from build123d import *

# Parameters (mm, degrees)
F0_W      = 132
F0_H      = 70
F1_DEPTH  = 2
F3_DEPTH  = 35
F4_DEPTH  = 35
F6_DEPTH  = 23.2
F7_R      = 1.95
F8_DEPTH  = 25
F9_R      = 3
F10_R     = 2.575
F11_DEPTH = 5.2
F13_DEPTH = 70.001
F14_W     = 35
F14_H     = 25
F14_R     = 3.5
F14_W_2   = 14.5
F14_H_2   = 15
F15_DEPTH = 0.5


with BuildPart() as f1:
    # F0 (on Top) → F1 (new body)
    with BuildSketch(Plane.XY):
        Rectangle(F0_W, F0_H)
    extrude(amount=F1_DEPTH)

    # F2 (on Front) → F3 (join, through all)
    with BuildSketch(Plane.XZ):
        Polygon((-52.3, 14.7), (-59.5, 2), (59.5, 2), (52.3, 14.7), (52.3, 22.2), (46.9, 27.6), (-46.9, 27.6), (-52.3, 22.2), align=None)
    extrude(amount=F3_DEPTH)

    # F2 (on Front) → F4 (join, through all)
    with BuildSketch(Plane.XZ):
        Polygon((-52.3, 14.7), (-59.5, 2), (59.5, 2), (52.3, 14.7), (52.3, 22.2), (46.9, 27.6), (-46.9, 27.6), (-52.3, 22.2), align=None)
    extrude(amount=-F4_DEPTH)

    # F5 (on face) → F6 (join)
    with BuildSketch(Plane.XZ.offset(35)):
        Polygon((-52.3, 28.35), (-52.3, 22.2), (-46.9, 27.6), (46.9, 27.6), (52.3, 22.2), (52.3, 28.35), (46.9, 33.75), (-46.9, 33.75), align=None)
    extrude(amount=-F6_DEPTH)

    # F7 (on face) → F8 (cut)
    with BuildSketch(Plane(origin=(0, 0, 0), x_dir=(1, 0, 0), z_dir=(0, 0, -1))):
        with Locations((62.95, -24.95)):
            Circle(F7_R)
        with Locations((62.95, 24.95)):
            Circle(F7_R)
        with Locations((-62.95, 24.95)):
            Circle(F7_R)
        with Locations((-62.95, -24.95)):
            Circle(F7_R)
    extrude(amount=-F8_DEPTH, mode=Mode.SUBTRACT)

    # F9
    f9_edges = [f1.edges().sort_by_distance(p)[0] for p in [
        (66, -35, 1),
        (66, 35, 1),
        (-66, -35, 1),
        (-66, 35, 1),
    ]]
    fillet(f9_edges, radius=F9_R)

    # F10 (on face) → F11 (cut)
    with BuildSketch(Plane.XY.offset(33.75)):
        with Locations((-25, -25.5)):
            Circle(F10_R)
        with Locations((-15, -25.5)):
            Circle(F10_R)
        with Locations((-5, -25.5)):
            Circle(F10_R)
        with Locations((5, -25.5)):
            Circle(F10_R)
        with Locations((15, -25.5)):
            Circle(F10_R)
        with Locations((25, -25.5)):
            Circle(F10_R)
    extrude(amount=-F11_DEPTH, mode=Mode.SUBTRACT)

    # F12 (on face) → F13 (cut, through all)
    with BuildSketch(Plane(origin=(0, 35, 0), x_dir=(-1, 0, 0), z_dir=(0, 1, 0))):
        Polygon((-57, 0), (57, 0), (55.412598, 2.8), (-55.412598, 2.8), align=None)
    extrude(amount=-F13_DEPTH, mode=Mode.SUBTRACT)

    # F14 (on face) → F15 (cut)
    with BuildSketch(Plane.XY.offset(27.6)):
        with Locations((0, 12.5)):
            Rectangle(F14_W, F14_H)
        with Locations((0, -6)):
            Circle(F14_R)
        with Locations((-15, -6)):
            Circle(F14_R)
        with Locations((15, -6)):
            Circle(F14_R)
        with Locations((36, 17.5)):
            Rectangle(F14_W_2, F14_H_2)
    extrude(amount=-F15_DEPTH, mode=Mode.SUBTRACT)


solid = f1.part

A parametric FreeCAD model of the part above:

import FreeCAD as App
import Part
import Sketcher
from FreeCAD import Vector
Q = App.Units.Quantity


def edges_at(feature, points):
    """Names of the edges that pass closest to the given points."""
    edges = feature.Shape.Edges
    near = lambda p: min(range(len(edges)), key=lambda i: edges[i].distToShape(Part.Vertex(*p))[0])
    return sorted({f"Edge{near(p) + 1}" for p in points})

doc = App.newDocument("Part")
params = doc.addObject("Spreadsheet::Sheet", "Params")
for row, (alias, value) in enumerate([
    ("sketch1_width", "132 mm"),
    ("sketch1_height", "70 mm"),
    ("pad1_length", "2 mm"),
    ("sketch2_width", "119 mm"),
    ("sketch2_width2", "93.8 mm"),
    ("sketch2_height", "7.5 mm"),
    ("pad2_length", "35 mm"),
    ("sketch3_width", "119 mm"),
    ("sketch3_width2", "93.8 mm"),
    ("sketch3_height", "7.5 mm"),
    ("pad3_length", "35 mm"),
    ("sketch4_width", "93.8 mm"),
    ("sketch4_height", "6.15 mm"),
    ("pad4_length", "23.2 mm"),
    ("sketch5_diameter", "3.9 mm"),
    ("pocket1_length", "25 mm"),
    ("fillet_radius", "3 mm"),
    ("sketch6_diameter", "5.15 mm"),
    ("pocket2_length", "5.2 mm"),
    ("sketch7_width", "114 mm"),
    ("sketch8_diameter", "7 mm"),
    ("sketch8_width", "35 mm"),
    ("sketch8_height", "25 mm"),
    ("sketch8_height2", "15 mm"),
    ("sketch8_width2", "14.5 mm"),
    ("pocket4_length", "0.5 mm"),
], start=1):
    params.set(f"A{row}", alias)
    params.set(f"B{row}", "=" + value)
    params.setAlias(f"B{row}", alias)

body = doc.addObject("PartDesign::Body", "Body")

# Sketch on XY plane
sketch1 = doc.addObject("Sketcher::SketchObject", "Sketch")
body.addObject(sketch1)
sketch1.AttachmentSupport = (doc.XY_Plane, [""])
sketch1.MapMode = "FlatFace"
sketch1.addGeometry(Part.LineSegment(Vector(-66, 35, 0), Vector(-66, -35, 0)), False)
sketch1.addGeometry(Part.LineSegment(Vector(-66, -35, 0), Vector(66, -35, 0)), False)
sketch1.addGeometry(Part.LineSegment(Vector(66, -35, 0), Vector(66, 35, 0)), False)
sketch1.addGeometry(Part.LineSegment(Vector(66, 35, 0), Vector(-66, 35, 0)), False)
sketch1.addConstraint(Sketcher.Constraint("Coincident", 0, 2, 1, 1))
sketch1.addConstraint(Sketcher.Constraint("Coincident", 1, 2, 2, 1))
sketch1.addConstraint(Sketcher.Constraint("Coincident", 2, 2, 3, 1))
sketch1.addConstraint(Sketcher.Constraint("Coincident", 3, 2, 0, 1))
sketch1.addConstraint(Sketcher.Constraint("Vertical", 0))
sketch1.addConstraint(Sketcher.Constraint("Horizontal", 1))
sketch1.addConstraint(Sketcher.Constraint("Vertical", 2))
sketch1.addConstraint(Sketcher.Constraint("Horizontal", 3))
sketch1.addConstraint(Sketcher.Constraint("Symmetric", 0, 2, 2, 2, -1, 1))
sketch1.addConstraint(Sketcher.Constraint("DistanceX", 1, 1, 1, 2, Q("132 mm")))
sketch1.addConstraint(Sketcher.Constraint("DistanceY", 0, 2, 0, 1, Q("70 mm")))
sketch1.setExpression("Constraints[9]", "Params.sketch1_width")
sketch1.setExpression("Constraints[10]", "Params.sketch1_height")
pad1 = doc.addObject("PartDesign::Pad", "Pad")
body.addObject(pad1)
pad1.Profile = sketch1
pad1.setExpression("Length", "Params.pad1_length")

# Sketch on XZ plane
sketch2 = doc.addObject("Sketcher::SketchObject", "Sketch001")
body.addObject(sketch2)
sketch2.AttachmentSupport = (doc.XZ_Plane, [""])
sketch2.MapMode = "FlatFace"
sketch2.addGeometry(Part.LineSegment(Vector(-52.3, 14.7, 0), Vector(-59.5, 2, 0)), False)
sketch2.addGeometry(Part.LineSegment(Vector(-59.5, 2, 0), Vector(59.5, 2, 0)), False)
sketch2.addGeometry(Part.LineSegment(Vector(59.5, 2, 0), Vector(52.3, 14.7, 0)), False)
sketch2.addGeometry(Part.LineSegment(Vector(52.3, 14.7, 0), Vector(52.3, 22.2, 0)), False)
sketch2.addGeometry(Part.LineSegment(Vector(52.3, 22.2, 0), Vector(46.9, 27.6, 0)), False)
sketch2.addGeometry(Part.LineSegment(Vector(46.9, 27.6, 0), Vector(-46.9, 27.6, 0)), False)
sketch2.addGeometry(Part.LineSegment(Vector(-46.9, 27.6, 0), Vector(-52.3, 22.2, 0)), False)
sketch2.addGeometry(Part.LineSegment(Vector(-52.3, 22.2, 0), Vector(-52.3, 14.7, 0)), False)
sketch2.addConstraint(Sketcher.Constraint("Coincident", 0, 2, 1, 1))
sketch2.addConstraint(Sketcher.Constraint("Coincident", 1, 2, 2, 1))
sketch2.addConstraint(Sketcher.Constraint("Coincident", 2, 2, 3, 1))
sketch2.addConstraint(Sketcher.Constraint("Coincident", 3, 2, 4, 1))
sketch2.addConstraint(Sketcher.Constraint("Coincident", 4, 2, 5, 1))
sketch2.addConstraint(Sketcher.Constraint("Coincident", 5, 2, 6, 1))
sketch2.addConstraint(Sketcher.Constraint("Coincident", 6, 2, 7, 1))
sketch2.addConstraint(Sketcher.Constraint("Coincident", 7, 2, 0, 1))
sketch2.addConstraint(Sketcher.Constraint("Horizontal", 1))
sketch2.addConstraint(Sketcher.Constraint("Vertical", 3))
sketch2.addConstraint(Sketcher.Constraint("Horizontal", 5))
sketch2.addConstraint(Sketcher.Constraint("Vertical", 7))
sketch2.addConstraint(Sketcher.Constraint("Symmetric", 3, 2, 6, 2, -2))
sketch2.addConstraint(Sketcher.Constraint("Perpendicular", 4, 6))
sketch2.addConstraint(Sketcher.Constraint("Horizontal", 2, 2, 7, 2))
sketch2.addConstraint(Sketcher.Constraint("Equal", 0, 2))
sketch2.addConstraint(Sketcher.Constraint("Equal", 4, 6))
sketch2.addConstraint(Sketcher.Constraint("DistanceX", 1, 1, 1, 2, Q("119 mm")))
sketch2.addConstraint(Sketcher.Constraint("DistanceX", 5, 2, 5, 1, Q("93.8 mm")))
sketch2.addConstraint(Sketcher.Constraint("DistanceY", 3, 1, 3, 2, Q("7.5 mm")))
sketch2.addConstraint(Sketcher.Constraint("DistanceY", -1, 1, 0, 2, Q("2 mm")))
sketch2.addConstraint(Sketcher.Constraint("DistanceX", -1, 1, 2, 2, Q("52.3 mm")))
sketch2.addConstraint(Sketcher.Constraint("DistanceY", -1, 1, 2, 2, Q("14.7 mm")))
sketch2.setExpression("Constraints[17]", "Params.sketch2_width")
sketch2.setExpression("Constraints[18]", "Params.sketch2_width2")
sketch2.setExpression("Constraints[19]", "Params.sketch2_height")
pad2 = doc.addObject("PartDesign::Pad", "Pad001")
body.addObject(pad2)
pad2.Profile = sketch2
pad2.setExpression("Length", "Params.pad2_length")

# Sketch on XZ plane
sketch3 = doc.addObject("Sketcher::SketchObject", "Sketch002")
body.addObject(sketch3)
sketch3.AttachmentSupport = (doc.XZ_Plane, [""])
sketch3.MapMode = "FlatFace"
sketch3.addGeometry(Part.LineSegment(Vector(-52.3, 14.7, 0), Vector(-59.5, 2, 0)), False)
sketch3.addGeometry(Part.LineSegment(Vector(-59.5, 2, 0), Vector(59.5, 2, 0)), False)
sketch3.addGeometry(Part.LineSegment(Vector(59.5, 2, 0), Vector(52.3, 14.7, 0)), False)
sketch3.addGeometry(Part.LineSegment(Vector(52.3, 14.7, 0), Vector(52.3, 22.2, 0)), False)
sketch3.addGeometry(Part.LineSegment(Vector(52.3, 22.2, 0), Vector(46.9, 27.6, 0)), False)
sketch3.addGeometry(Part.LineSegment(Vector(46.9, 27.6, 0), Vector(-46.9, 27.6, 0)), False)
sketch3.addGeometry(Part.LineSegment(Vector(-46.9, 27.6, 0), Vector(-52.3, 22.2, 0)), False)
sketch3.addGeometry(Part.LineSegment(Vector(-52.3, 22.2, 0), Vector(-52.3, 14.7, 0)), False)
sketch3.addConstraint(Sketcher.Constraint("Coincident", 0, 2, 1, 1))
sketch3.addConstraint(Sketcher.Constraint("Coincident", 1, 2, 2, 1))
sketch3.addConstraint(Sketcher.Constraint("Coincident", 2, 2, 3, 1))
sketch3.addConstraint(Sketcher.Constraint("Coincident", 3, 2, 4, 1))
sketch3.addConstraint(Sketcher.Constraint("Coincident", 4, 2, 5, 1))
sketch3.addConstraint(Sketcher.Constraint("Coincident", 5, 2, 6, 1))
sketch3.addConstraint(Sketcher.Constraint("Coincident", 6, 2, 7, 1))
sketch3.addConstraint(Sketcher.Constraint("Coincident", 7, 2, 0, 1))
sketch3.addConstraint(Sketcher.Constraint("Horizontal", 1))
sketch3.addConstraint(Sketcher.Constraint("Vertical", 3))
sketch3.addConstraint(Sketcher.Constraint("Horizontal", 5))
sketch3.addConstraint(Sketcher.Constraint("Vertical", 7))
sketch3.addConstraint(Sketcher.Constraint("Symmetric", 3, 2, 6, 2, -2))
sketch3.addConstraint(Sketcher.Constraint("Perpendicular", 4, 6))
sketch3.addConstraint(Sketcher.Constraint("Horizontal", 2, 2, 7, 2))
sketch3.addConstraint(Sketcher.Constraint("Equal", 0, 2))
sketch3.addConstraint(Sketcher.Constraint("Equal", 4, 6))
sketch3.addConstraint(Sketcher.Constraint("DistanceX", 1, 1, 1, 2, Q("119 mm")))
sketch3.addConstraint(Sketcher.Constraint("DistanceX", 5, 2, 5, 1, Q("93.8 mm")))
sketch3.addConstraint(Sketcher.Constraint("DistanceY", 3, 1, 3, 2, Q("7.5 mm")))
sketch3.addConstraint(Sketcher.Constraint("DistanceY", -1, 1, 0, 2, Q("2 mm")))
sketch3.addConstraint(Sketcher.Constraint("DistanceX", -1, 1, 2, 2, Q("52.3 mm")))
sketch3.addConstraint(Sketcher.Constraint("DistanceY", -1, 1, 2, 2, Q("14.7 mm")))
sketch3.setExpression("Constraints[17]", "Params.sketch3_width")
sketch3.setExpression("Constraints[18]", "Params.sketch3_width2")
sketch3.setExpression("Constraints[19]", "Params.sketch3_height")
pad3 = doc.addObject("PartDesign::Pad", "Pad002")
body.addObject(pad3)
pad3.Profile = sketch3
pad3.setExpression("Length", "Params.pad3_length")
pad3.Reversed = True

# Sketch on XZ plane
sketch4 = doc.addObject("Sketcher::SketchObject", "Sketch003")
body.addObject(sketch4)
sketch4.AttachmentSupport = (doc.XZ_Plane, [""])
sketch4.MapMode = "FlatFace"
sketch4.AttachmentOffset = App.Placement(Vector(0, 0, 35), App.Rotation())
sketch4.addGeometry(Part.LineSegment(Vector(-52.3, 28.35, 0), Vector(-52.3, 22.2, 0)), False)
sketch4.addGeometry(Part.LineSegment(Vector(-52.3, 22.2, 0), Vector(-46.9, 27.6, 0)), False)
sketch4.addGeometry(Part.LineSegment(Vector(-46.9, 27.6, 0), Vector(46.9, 27.6, 0)), False)
sketch4.addGeometry(Part.LineSegment(Vector(46.9, 27.6, 0), Vector(52.3, 22.2, 0)), False)
sketch4.addGeometry(Part.LineSegment(Vector(52.3, 22.2, 0), Vector(52.3, 28.35, 0)), False)
sketch4.addGeometry(Part.LineSegment(Vector(52.3, 28.35, 0), Vector(46.9, 33.75, 0)), False)
sketch4.addGeometry(Part.LineSegment(Vector(46.9, 33.75, 0), Vector(-46.9, 33.75, 0)), False)
sketch4.addGeometry(Part.LineSegment(Vector(-46.9, 33.75, 0), Vector(-52.3, 28.35, 0)), False)
sketch4.addConstraint(Sketcher.Constraint("Coincident", 0, 2, 1, 1))
sketch4.addConstraint(Sketcher.Constraint("Coincident", 1, 2, 2, 1))
sketch4.addConstraint(Sketcher.Constraint("Coincident", 2, 2, 3, 1))
sketch4.addConstraint(Sketcher.Constraint("Coincident", 3, 2, 4, 1))
sketch4.addConstraint(Sketcher.Constraint("Coincident", 4, 2, 5, 1))
sketch4.addConstraint(Sketcher.Constraint("Coincident", 5, 2, 6, 1))
sketch4.addConstraint(Sketcher.Constraint("Coincident", 6, 2, 7, 1))
sketch4.addConstraint(Sketcher.Constraint("Coincident", 7, 2, 0, 1))
sketch4.addConstraint(Sketcher.Constraint("Vertical", 0))
sketch4.addConstraint(Sketcher.Constraint("Horizontal", 2))
sketch4.addConstraint(Sketcher.Constraint("Vertical", 4))
sketch4.addConstraint(Sketcher.Constraint("Horizontal", 6))
sketch4.addConstraint(Sketcher.Constraint("Symmetric", 0, 2, 3, 2, -2))
sketch4.addConstraint(Sketcher.Constraint("Perpendicular", 1, 3))
sketch4.addConstraint(Sketcher.Constraint("Parallel", 3, 5))
sketch4.addConstraint(Sketcher.Constraint("Perpendicular", 5, 7))
sketch4.addConstraint(Sketcher.Constraint("Horizontal", 4, 2, 7, 2))
sketch4.addConstraint(Sketcher.Constraint("Vertical", 2, 2, 5, 2))
sketch4.addConstraint(Sketcher.Constraint("Equal", 1, 3))
sketch4.addConstraint(Sketcher.Constraint("DistanceX", 2, 1, 2, 2, Q("93.8 mm")))
sketch4.addConstraint(Sketcher.Constraint("DistanceY", 0, 2, 0, 1, Q("6.15 mm")))
sketch4.addConstraint(Sketcher.Constraint("DistanceX", 0, 2, -1, 1, Q("52.3 mm")))
sketch4.addConstraint(Sketcher.Constraint("DistanceY", -1, 1, 0, 2, Q("22.2 mm")))
sketch4.setExpression("Constraints[19]", "Params.sketch4_width")
sketch4.setExpression("Constraints[20]", "Params.sketch4_height")
pad4 = doc.addObject("PartDesign::Pad", "Pad003")
body.addObject(pad4)
pad4.Profile = sketch4
pad4.setExpression("Length", "Params.pad4_length")
pad4.Reversed = True

# Sketch on XY plane
sketch5 = doc.addObject("Sketcher::SketchObject", "Sketch004")
body.addObject(sketch5)
sketch5.AttachmentSupport = (doc.XY_Plane, [""])
sketch5.MapMode = "FlatFace"
sketch5.addGeometry(Part.Circle(Vector(62.95, 24.95, 0), Vector(0, 0, 1), 1.95), False)
sketch5.addGeometry(Part.Circle(Vector(62.95, -24.95, 0), Vector(0, 0, 1), 1.95), False)
sketch5.addGeometry(Part.Circle(Vector(-62.95, -24.95, 0), Vector(0, 0, 1), 1.95), False)
sketch5.addGeometry(Part.Circle(Vector(-62.95, 24.95, 0), Vector(0, 0, 1), 1.95), False)
sketch5.addConstraint(Sketcher.Constraint("Equal", 0, 1))
sketch5.addConstraint(Sketcher.Constraint("Equal", 1, 2))
sketch5.addConstraint(Sketcher.Constraint("Equal", 2, 3))
sketch5.addConstraint(Sketcher.Constraint("Symmetric", 0, 3, 2, 3, -1, 1))
sketch5.addConstraint(Sketcher.Constraint("Symmetric", 1, 3, 3, 3, -1, 1))
sketch5.addConstraint(Sketcher.Constraint("Symmetric", 1, 3, 2, 3, -2))
sketch5.addConstraint(Sketcher.Constraint("Diameter", 0, Q("3.9 mm")))
sketch5.addConstraint(Sketcher.Constraint("DistanceY", 1, 3, 0, 3, Q("49.9 mm")))
sketch5.addConstraint(Sketcher.Constraint("DistanceX", 2, 3, 1, 3, Q("125.9 mm")))
sketch5.setExpression("Constraints[6]", "Params.sketch5_diameter")
pocket1 = doc.addObject("PartDesign::Pocket", "Pocket")
body.addObject(pocket1)
pocket1.Profile = sketch5
pocket1.setExpression("Length", "Params.pocket1_length")
pocket1.Reversed = True
doc.recompute()

fillet = doc.addObject("PartDesign::Fillet", "Fillet")
body.addObject(fillet)
fillet.Base = (pocket1, edges_at(pocket1, [
    (66, -35, 1),
    (66, 35, 1),
    (-66, -35, 1),
    (-66, 35, 1),
]))
fillet.setExpression("Radius", "Params.fillet_radius")

# Sketch on XY plane
sketch6 = doc.addObject("Sketcher::SketchObject", "Sketch005")
body.addObject(sketch6)
sketch6.AttachmentSupport = (doc.XY_Plane, [""])
sketch6.MapMode = "FlatFace"
sketch6.AttachmentOffset = App.Placement(Vector(0, 0, 33.75), App.Rotation())
sketch6.addGeometry(Part.Circle(Vector(-25, -25.5, 0), Vector(0, 0, 1), 2.575), False)
sketch6.addGeometry(Part.Circle(Vector(-15, -25.5, 0), Vector(0, 0, 1), 2.575), False)
sketch6.addGeometry(Part.Circle(Vector(-5, -25.5, 0), Vector(0, 0, 1), 2.575), False)
sketch6.addGeometry(Part.Circle(Vector(5, -25.5, 0), Vector(0, 0, 1), 2.575), False)
sketch6.addGeometry(Part.Circle(Vector(15, -25.5, 0), Vector(0, 0, 1), 2.575), False)
sketch6.addGeometry(Part.Circle(Vector(25, -25.5, 0), Vector(0, 0, 1), 2.575), False)
sketch6.addConstraint(Sketcher.Constraint("Equal", 0, 1))
sketch6.addConstraint(Sketcher.Constraint("Equal", 1, 2))
sketch6.addConstraint(Sketcher.Constraint("Equal", 2, 3))
sketch6.addConstraint(Sketcher.Constraint("Equal", 3, 4))
sketch6.addConstraint(Sketcher.Constraint("Equal", 4, 5))
sketch6.addConstraint(Sketcher.Constraint("Symmetric", 2, 3, 3, 3, -2))
sketch6.addConstraint(Sketcher.Constraint("Symmetric", 1, 3, 4, 3, -2))
sketch6.addConstraint(Sketcher.Constraint("Symmetric", 0, 3, 5, 3, -2))
sketch6.addConstraint(Sketcher.Constraint("Horizontal", 0, 3, 1, 3))
sketch6.addConstraint(Sketcher.Constraint("Horizontal", 1, 3, 2, 3))
sketch6.addConstraint(Sketcher.Constraint("Diameter", 0, Q("5.15 mm")))
sketch6.addConstraint(Sketcher.Constraint("DistanceX", 0, 3, -1, 1, Q("25 mm")))
sketch6.addConstraint(Sketcher.Constraint("DistanceX", 1, 3, -1, 1, Q("15 mm")))
sketch6.addConstraint(Sketcher.Constraint("DistanceX", 2, 3, -1, 1, Q("5 mm")))
sketch6.addConstraint(Sketcher.Constraint("DistanceY", 0, 3, -1, 1, Q("25.5 mm")))
sketch6.setExpression("Constraints[10]", "Params.sketch6_diameter")
pocket2 = doc.addObject("PartDesign::Pocket", "Pocket001")
body.addObject(pocket2)
pocket2.Profile = sketch6
pocket2.setExpression("Length", "Params.pocket2_length")

# Sketch on XZ plane
sketch7 = doc.addObject("Sketcher::SketchObject", "Sketch006")
body.addObject(sketch7)
sketch7.AttachmentSupport = (doc.XZ_Plane, [""])
sketch7.MapMode = "FlatFace"
sketch7.AttachmentOffset = App.Placement(Vector(0, 0, -35), App.Rotation())
sketch7.addGeometry(Part.LineSegment(Vector(57, 0, 0), Vector(-57, 0, 0)), False)
sketch7.addGeometry(Part.LineSegment(Vector(-57, 0, 0), Vector(-55.412598, 2.8, 0)), False)
sketch7.addGeometry(Part.LineSegment(Vector(-55.412598, 2.8, 0), Vector(55.412598, 2.8, 0)), False)
sketch7.addGeometry(Part.LineSegment(Vector(55.412598, 2.8, 0), Vector(57, 0, 0)), False)
sketch7.addConstraint(Sketcher.Constraint("Coincident", 0, 2, 1, 1))
sketch7.addConstraint(Sketcher.Constraint("Coincident", 1, 2, 2, 1))
sketch7.addConstraint(Sketcher.Constraint("Coincident", 2, 2, 3, 1))
sketch7.addConstraint(Sketcher.Constraint("Coincident", 3, 2, 0, 1))
sketch7.addConstraint(Sketcher.Constraint("Horizontal", 0))
sketch7.addConstraint(Sketcher.Constraint("Horizontal", 2))
sketch7.addConstraint(Sketcher.Constraint("Symmetric", 0, 2, 3, 2, -1, 1))
sketch7.addConstraint(Sketcher.Constraint("Equal", 1, 3))
sketch7.addConstraint(Sketcher.Constraint("DistanceX", 0, 2, 0, 1, Q("114 mm")))
sketch7.addConstraint(Sketcher.Constraint("DistanceY", -1, 1, 1, 2, Q("2.8 mm")))
sketch7.addConstraint(Sketcher.Constraint("DistanceX", 1, 2, -1, 1, Q("55.412598 mm")))
sketch7.setExpression("Constraints[8]", "Params.sketch7_width")
pocket3 = doc.addObject("PartDesign::Pocket", "Pocket002")
body.addObject(pocket3)
pocket3.Profile = sketch7
pocket3.Type = "ThroughAll"
pocket3.Reversed = True

# Sketch on XY plane
sketch8 = doc.addObject("Sketcher::SketchObject", "Sketch007")
body.addObject(sketch8)
sketch8.AttachmentSupport = (doc.XY_Plane, [""])
sketch8.MapMode = "FlatFace"
sketch8.AttachmentOffset = App.Placement(Vector(0, 0, 27.6), App.Rotation())
sketch8.addGeometry(Part.LineSegment(Vector(-17.5, 25, 0), Vector(-17.5, 0, 0)), False)
sketch8.addGeometry(Part.LineSegment(Vector(-17.5, 0, 0), Vector(17.5, 0, 0)), False)
sketch8.addGeometry(Part.LineSegment(Vector(17.5, 0, 0), Vector(17.5, 25, 0)), False)
sketch8.addGeometry(Part.LineSegment(Vector(17.5, 25, 0), Vector(-17.5, 25, 0)), False)
sketch8.addGeometry(Part.Circle(Vector(0, -6, 0), Vector(0, 0, 1), 3.5), False)
sketch8.addGeometry(Part.Circle(Vector(-15, -6, 0), Vector(0, 0, 1), 3.5), False)
sketch8.addGeometry(Part.Circle(Vector(15, -6, 0), Vector(0, 0, 1), 3.5), False)
sketch8.addGeometry(Part.LineSegment(Vector(28.75, 25, 0), Vector(28.75, 10, 0)), False)
sketch8.addGeometry(Part.LineSegment(Vector(28.75, 10, 0), Vector(43.25, 10, 0)), False)
sketch8.addGeometry(Part.LineSegment(Vector(43.25, 10, 0), Vector(43.25, 25, 0)), False)
sketch8.addGeometry(Part.LineSegment(Vector(43.25, 25, 0), Vector(28.75, 25, 0)), False)
sketch8.addConstraint(Sketcher.Constraint("Coincident", 0, 2, 1, 1))
sketch8.addConstraint(Sketcher.Constraint("Coincident", 1, 2, 2, 1))
sketch8.addConstraint(Sketcher.Constraint("Coincident", 2, 2, 3, 1))
sketch8.addConstraint(Sketcher.Constraint("Coincident", 3, 2, 0, 1))
sketch8.addConstraint(Sketcher.Constraint("Coincident", 7, 2, 8, 1))
sketch8.addConstraint(Sketcher.Constraint("Coincident", 8, 2, 9, 1))
sketch8.addConstraint(Sketcher.Constraint("Coincident", 9, 2, 10, 1))
sketch8.addConstraint(Sketcher.Constraint("Coincident", 10, 2, 7, 1))
sketch8.addConstraint(Sketcher.Constraint("Vertical", 0))
sketch8.addConstraint(Sketcher.Constraint("Horizontal", 1))
sketch8.addConstraint(Sketcher.Constraint("Vertical", 2))
sketch8.addConstraint(Sketcher.Constraint("Horizontal", 3))
sketch8.addConstraint(Sketcher.Constraint("Vertical", 7))
sketch8.addConstraint(Sketcher.Constraint("Horizontal", 8))
sketch8.addConstraint(Sketcher.Constraint("Vertical", 9))
sketch8.addConstraint(Sketcher.Constraint("Horizontal", 10))
sketch8.addConstraint(Sketcher.Constraint("Equal", 4, 5))
sketch8.addConstraint(Sketcher.Constraint("Equal", 5, 6))
sketch8.addConstraint(Sketcher.Constraint("Symmetric", 0, 2, 1, 2, -1, 1))
sketch8.addConstraint(Sketcher.Constraint("Symmetric", 5, 3, 6, 3, -2))
sketch8.addConstraint(Sketcher.Constraint("PointOnObject", 4, 3, -2))
sketch8.addConstraint(Sketcher.Constraint("Horizontal", 4, 3, 5, 3))
sketch8.addConstraint(Sketcher.Constraint("Horizontal", 3, 2, 9, 2))
sketch8.addConstraint(Sketcher.Constraint("Diameter", 4, Q("7 mm")))
sketch8.addConstraint(Sketcher.Constraint("DistanceX", 1, 1, 1, 2, Q("35 mm")))
sketch8.addConstraint(Sketcher.Constraint("DistanceY", 0, 2, 0, 1, Q("25 mm")))
sketch8.addConstraint(Sketcher.Constraint("DistanceY", 7, 2, 7, 1, Q("15 mm")))
sketch8.addConstraint(Sketcher.Constraint("DistanceX", 8, 1, 8, 2, Q("14.5 mm")))
sketch8.addConstraint(Sketcher.Constraint("DistanceY", 4, 3, -1, 1, Q("6 mm")))
sketch8.addConstraint(Sketcher.Constraint("DistanceX", 5, 3, -1, 1, Q("15 mm")))
sketch8.addConstraint(Sketcher.Constraint("DistanceX", -1, 1, 7, 2, Q("28.75 mm")))
sketch8.setExpression("Constraints[23]", "Params.sketch8_diameter")
sketch8.setExpression("Constraints[24]", "Params.sketch8_width")
sketch8.setExpression("Constraints[25]", "Params.sketch8_height")
sketch8.setExpression("Constraints[26]", "Params.sketch8_height2")
sketch8.setExpression("Constraints[27]", "Params.sketch8_width2")
pocket4 = doc.addObject("PartDesign::Pocket", "Pocket003")
body.addObject(pocket4)
pocket4.Profile = sketch8
pocket4.setExpression("Length", "Params.pocket4_length")

doc.recompute()
